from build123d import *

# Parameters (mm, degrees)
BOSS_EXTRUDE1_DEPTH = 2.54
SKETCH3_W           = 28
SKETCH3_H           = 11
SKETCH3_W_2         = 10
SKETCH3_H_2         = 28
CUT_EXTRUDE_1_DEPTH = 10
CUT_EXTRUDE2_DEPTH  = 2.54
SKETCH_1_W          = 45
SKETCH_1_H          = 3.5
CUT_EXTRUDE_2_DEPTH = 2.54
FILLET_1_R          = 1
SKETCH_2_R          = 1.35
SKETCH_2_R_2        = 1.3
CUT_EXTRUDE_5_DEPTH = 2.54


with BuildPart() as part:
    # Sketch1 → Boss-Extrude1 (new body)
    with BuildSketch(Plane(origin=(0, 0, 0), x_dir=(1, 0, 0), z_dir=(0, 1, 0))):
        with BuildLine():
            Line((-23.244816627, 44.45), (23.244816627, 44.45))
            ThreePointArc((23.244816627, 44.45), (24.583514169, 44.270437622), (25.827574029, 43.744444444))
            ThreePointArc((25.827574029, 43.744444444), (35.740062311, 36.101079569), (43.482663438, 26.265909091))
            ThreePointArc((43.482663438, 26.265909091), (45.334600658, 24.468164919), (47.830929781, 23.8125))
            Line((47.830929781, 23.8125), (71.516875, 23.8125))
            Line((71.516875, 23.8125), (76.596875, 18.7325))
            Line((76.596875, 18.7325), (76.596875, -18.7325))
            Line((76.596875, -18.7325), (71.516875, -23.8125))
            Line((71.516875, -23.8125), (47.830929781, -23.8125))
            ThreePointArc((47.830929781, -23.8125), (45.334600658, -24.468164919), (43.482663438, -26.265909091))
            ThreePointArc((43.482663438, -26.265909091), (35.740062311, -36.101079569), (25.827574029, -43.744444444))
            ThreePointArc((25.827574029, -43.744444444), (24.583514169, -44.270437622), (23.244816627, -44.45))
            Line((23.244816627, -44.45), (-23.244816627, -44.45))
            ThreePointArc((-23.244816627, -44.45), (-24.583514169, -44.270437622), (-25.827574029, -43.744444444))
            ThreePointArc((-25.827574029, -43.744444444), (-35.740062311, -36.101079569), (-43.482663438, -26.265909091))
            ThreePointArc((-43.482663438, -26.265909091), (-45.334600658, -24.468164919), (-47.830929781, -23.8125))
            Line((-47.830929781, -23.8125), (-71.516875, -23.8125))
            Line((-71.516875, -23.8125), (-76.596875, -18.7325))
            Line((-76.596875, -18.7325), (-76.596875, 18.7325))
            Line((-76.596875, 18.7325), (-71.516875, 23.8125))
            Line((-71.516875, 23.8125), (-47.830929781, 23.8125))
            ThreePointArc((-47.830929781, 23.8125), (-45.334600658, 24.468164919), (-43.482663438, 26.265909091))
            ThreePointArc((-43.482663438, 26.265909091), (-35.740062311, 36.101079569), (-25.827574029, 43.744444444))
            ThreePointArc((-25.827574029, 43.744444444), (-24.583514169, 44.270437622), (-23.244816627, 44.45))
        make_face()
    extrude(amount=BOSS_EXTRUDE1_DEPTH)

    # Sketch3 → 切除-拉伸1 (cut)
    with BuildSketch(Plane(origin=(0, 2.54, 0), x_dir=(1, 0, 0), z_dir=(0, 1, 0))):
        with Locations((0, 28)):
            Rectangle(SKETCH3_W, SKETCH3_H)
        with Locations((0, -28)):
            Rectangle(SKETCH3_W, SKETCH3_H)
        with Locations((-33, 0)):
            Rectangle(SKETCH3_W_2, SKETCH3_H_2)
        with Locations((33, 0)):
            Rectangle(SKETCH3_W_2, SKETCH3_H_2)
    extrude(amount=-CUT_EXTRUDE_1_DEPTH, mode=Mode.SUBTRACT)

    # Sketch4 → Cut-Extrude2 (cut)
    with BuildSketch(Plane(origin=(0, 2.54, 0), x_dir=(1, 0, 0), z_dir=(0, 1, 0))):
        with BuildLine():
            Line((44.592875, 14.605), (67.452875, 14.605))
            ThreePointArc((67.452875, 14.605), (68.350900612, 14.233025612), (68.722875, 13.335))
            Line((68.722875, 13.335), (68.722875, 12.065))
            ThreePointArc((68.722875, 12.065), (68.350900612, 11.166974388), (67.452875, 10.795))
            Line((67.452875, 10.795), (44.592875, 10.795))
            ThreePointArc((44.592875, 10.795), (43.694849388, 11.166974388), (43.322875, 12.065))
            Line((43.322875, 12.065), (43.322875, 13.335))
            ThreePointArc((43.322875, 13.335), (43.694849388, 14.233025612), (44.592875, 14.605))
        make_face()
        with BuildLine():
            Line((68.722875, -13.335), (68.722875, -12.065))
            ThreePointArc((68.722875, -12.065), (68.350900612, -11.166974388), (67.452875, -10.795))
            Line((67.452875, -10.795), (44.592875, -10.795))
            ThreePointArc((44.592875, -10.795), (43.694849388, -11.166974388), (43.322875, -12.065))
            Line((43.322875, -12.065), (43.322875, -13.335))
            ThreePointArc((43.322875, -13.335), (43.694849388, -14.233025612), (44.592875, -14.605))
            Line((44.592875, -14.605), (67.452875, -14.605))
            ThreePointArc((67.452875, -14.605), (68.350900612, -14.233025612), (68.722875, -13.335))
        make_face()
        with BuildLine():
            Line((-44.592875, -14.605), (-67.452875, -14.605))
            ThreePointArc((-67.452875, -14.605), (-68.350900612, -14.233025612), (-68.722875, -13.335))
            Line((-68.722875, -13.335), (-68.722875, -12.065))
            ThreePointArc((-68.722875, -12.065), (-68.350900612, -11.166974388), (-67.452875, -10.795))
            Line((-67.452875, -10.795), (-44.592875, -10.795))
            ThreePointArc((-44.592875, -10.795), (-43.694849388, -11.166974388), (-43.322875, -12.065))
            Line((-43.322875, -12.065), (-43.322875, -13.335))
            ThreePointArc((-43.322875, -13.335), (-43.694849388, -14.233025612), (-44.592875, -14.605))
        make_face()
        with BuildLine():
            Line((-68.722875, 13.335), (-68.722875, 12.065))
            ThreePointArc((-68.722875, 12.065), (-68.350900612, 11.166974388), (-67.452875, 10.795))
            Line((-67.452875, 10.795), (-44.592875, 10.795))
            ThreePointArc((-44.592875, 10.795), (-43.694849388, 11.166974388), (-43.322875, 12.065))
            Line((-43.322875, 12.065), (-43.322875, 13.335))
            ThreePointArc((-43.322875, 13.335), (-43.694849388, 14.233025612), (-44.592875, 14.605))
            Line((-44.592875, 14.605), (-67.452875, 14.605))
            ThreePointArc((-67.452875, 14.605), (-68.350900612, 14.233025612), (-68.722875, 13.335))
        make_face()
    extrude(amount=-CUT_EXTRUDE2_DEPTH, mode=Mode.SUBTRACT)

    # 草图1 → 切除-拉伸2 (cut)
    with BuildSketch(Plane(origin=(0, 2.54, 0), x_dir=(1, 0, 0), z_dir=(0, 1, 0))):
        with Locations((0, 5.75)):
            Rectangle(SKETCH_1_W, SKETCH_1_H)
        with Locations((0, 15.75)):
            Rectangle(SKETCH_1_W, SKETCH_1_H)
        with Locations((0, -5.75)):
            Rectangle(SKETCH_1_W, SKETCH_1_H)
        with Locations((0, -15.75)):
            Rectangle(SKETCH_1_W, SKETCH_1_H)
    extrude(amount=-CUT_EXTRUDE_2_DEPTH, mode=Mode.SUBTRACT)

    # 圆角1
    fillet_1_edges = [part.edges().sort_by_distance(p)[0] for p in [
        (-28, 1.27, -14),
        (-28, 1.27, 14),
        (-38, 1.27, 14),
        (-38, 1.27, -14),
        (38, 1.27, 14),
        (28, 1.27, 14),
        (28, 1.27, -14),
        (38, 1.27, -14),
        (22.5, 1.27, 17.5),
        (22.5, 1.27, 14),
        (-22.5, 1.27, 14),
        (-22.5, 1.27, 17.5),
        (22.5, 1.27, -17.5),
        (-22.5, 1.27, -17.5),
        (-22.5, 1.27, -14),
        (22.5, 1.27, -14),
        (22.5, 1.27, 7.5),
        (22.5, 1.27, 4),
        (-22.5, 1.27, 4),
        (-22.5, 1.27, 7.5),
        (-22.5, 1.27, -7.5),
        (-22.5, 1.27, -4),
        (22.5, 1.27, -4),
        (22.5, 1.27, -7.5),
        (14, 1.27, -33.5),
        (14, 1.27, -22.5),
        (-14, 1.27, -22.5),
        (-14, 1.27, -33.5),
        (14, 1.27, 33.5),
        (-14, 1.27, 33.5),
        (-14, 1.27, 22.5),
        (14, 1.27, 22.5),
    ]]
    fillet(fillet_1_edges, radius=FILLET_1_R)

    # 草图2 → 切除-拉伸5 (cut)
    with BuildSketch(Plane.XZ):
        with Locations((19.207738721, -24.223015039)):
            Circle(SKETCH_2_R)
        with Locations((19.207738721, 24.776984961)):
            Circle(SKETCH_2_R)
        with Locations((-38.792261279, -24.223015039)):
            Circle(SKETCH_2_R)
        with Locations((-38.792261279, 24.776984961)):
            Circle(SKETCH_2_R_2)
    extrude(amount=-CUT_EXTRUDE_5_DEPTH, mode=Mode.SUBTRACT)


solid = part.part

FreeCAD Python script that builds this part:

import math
import FreeCAD as App
import Part
import Sketcher


def edges_at(feature, points):
    """Names of the edges that pass closest to the given points."""
    edges = feature.Shape.Edges
    near = lambda p: min(range(len(edges)), key=lambda i: edges[i].distToShape(Part.Vertex(*p))[0])
    return sorted({f"Edge{near(p) + 1}" for p in points})

doc = App.newDocument("Part")
body = doc.addObject("PartDesign::Body", "Body")

# Sketch on XZ plane
sketch1 = body.newObject("Sketcher::SketchObject", "Sketch")
sketch1.AttachmentSupport = (doc.getObject("XZ_Plane"), [""])
sketch1.MapMode = "FlatFace"
sketch1.addGeometry(Part.LineSegment(App.Vector(23.2, -44.5, 0), App.Vector(-23.2, -44.5, 0)), False)
sketch1.addGeometry(Part.ArcOfCircle(Part.Circle(App.Vector(-23.2, -39.4, 0), App.Vector(0, 0, 1), 5.1), math.radians(-121), math.radians(-90)), False)
sketch1.addGeometry(Part.ArcOfCircle(Part.Circle(App.Vector(0, 0, 0), App.Vector(0, 0, 1), 50.8), math.radians(-149), math.radians(-121)), False)
sketch1.addGeometry(Part.ArcOfCircle(Part.Circle(App.Vector(-47.8, -28.9, 0), App.Vector(0, 0, 1), 5.1), math.radians(31), math.radians(90)), False)
sketch1.addGeometry(Part.LineSegment(App.Vector(-47.8, -23.8, 0), App.Vector(-71.5, -23.8, 0)), False)
sketch1.addGeometry(Part.LineSegment(App.Vector(-71.5, -23.8, 0), App.Vector(-76.6, -18.7, 0)), False)
sketch1.addGeometry(Part.LineSegment(App.Vector(-76.6, -18.7, 0), App.Vector(-76.6, 18.7, 0)), False)
sketch1.addGeometry(Part.LineSegment(App.Vector(-76.6, 18.7, 0), App.Vector(-71.5, 23.8, 0)), False)
sketch1.addGeometry(Part.LineSegment(App.Vector(-71.5, 23.8, 0), App.Vector(-47.8, 23.8, 0)), False)
sketch1.addGeometry(Part.ArcOfCircle(Part.Circle(App.Vector(-47.8, 28.9, 0), App.Vector(0, 0, 1), 5.1), math.radians(-90), math.radians(-31)), False)
sketch1.addGeometry(Part.ArcOfCircle(Part.Circle(App.Vector(0, 0, 0), App.Vector(0, 0, 1), 50.8), math.radians(121), math.radians(149)), False)
sketch1.addGeometry(Part.ArcOfCircle(Part.Circle(App.Vector(-23.2, 39.4, 0), App.Vector(0, 0, 1), 5.1), math.radians(90), math.radians(121)), False)
sketch1.addGeometry(Part.LineSegment(App.Vector(-23.2, 44.5, 0), App.Vector(23.2, 44.5, 0)), False)
sketch1.addGeometry(Part.ArcOfCircle(Part.Circle(App.Vector(23.2, 39.4, 0), App.Vector(0, 0, 1), 5.1), math.radians(59), math.radians(90)), False)
sketch1.addGeometry(Part.ArcOfCircle(Part.Circle(App.Vector(0, 0, 0), App.Vector(0, 0, 1), 50.8), math.radians(31), math.radians(59)), False)
sketch1.addGeometry(Part.ArcOfCircle(Part.Circle(App.Vector(47.8, 28.9, 0), App.Vector(0, 0, 1), 5.1), math.radians(-149), math.radians(-90)), False)
sketch1.addGeometry(Part.LineSegment(App.Vector(47.8, 23.8, 0), App.Vector(71.5, 23.8, 0)), False)
sketch1.addGeometry(Part.LineSegment(App.Vector(71.5, 23.8, 0), App.Vector(76.6, 18.7, 0)), False)
sketch1.addGeometry(Part.LineSegment(App.Vector(76.6, 18.7, 0), App.Vector(76.6, -18.7, 0)), False)
sketch1.addGeometry(Part.LineSegment(App.Vector(76.6, -18.7, 0), App.Vector(71.5, -23.8, 0)), False)
sketch1.addGeometry(Part.LineSegment(App.Vector(71.5, -23.8, 0), App.Vector(47.8, -23.8, 0)), False)
sketch1.addGeometry(Part.ArcOfCircle(Part.Circle(App.Vector(47.8, -28.9, 0), App.Vector(0, 0, 1), 5.1), math.radians(90), math.radians(149)), False)
sketch1.addGeometry(Part.ArcOfCircle(Part.Circle(App.Vector(0, 0, 0), App.Vector(0, 0, 1), 50.8), math.radians(-59), math.radians(-31)), False)
sketch1.addGeometry(Part.ArcOfCircle(Part.Circle(App.Vector(23.2, -39.4, 0), App.Vector(0, 0, 1), 5.1), math.radians(-90), math.radians(-59)), False)
sketch1.addConstraint(Sketcher.Constraint("Tangent", 0, 2, 1, 2))
sketch1.addConstraint(Sketcher.Constraint("Tangent", 1, 1, 2, 2))
sketch1.addConstraint(Sketcher.Constraint("Tangent", 2, 1, 3, 1))
sketch1.addConstraint(Sketcher.Constraint("Tangent", 3, 2, 4, 1))
sketch1.addConstraint(Sketcher.Constraint("Coincident", 4, 2, 5, 1))
sketch1.addConstraint(Sketcher.Constraint("Coincident", 5, 2, 6, 1))
sketch1.addConstraint(Sketcher.Constraint("Coincident", 6, 2, 7, 1))
sketch1.addConstraint(Sketcher.Constraint("Coincident", 7, 2, 8, 1))
sketch1.addConstraint(Sketcher.Constraint("Tangent", 8, 2, 9, 1))
sketch1.addConstraint(Sketcher.Constraint("Tangent", 9, 2, 10, 2))
sketch1.addConstraint(Sketcher.Constraint("Tangent", 10, 1, 11, 2))
sketch1.addConstraint(Sketcher.Constraint("Tangent", 11, 1, 12, 1))
sketch1.addConstraint(Sketcher.Constraint("Tangent", 12, 2, 13, 2))
sketch1.addConstraint(Sketcher.Constraint("Tangent", 13, 1, 14, 2))
sketch1.addConstraint(Sketcher.Constraint("Tangent", 14, 1, 15, 1))
sketch1.addConstraint(Sketcher.Constraint("Tangent", 15, 2, 16, 1))
sketch1.addConstraint(Sketcher.Constraint("Coincident", 16, 2, 17, 1))
sketch1.addConstraint(Sketcher.Constraint("Coincident", 17, 2, 18, 1))
sketch1.addConstraint(Sketcher.Constraint("Coincident", 18, 2, 19, 1))
sketch1.addConstraint(Sketcher.Constraint("Coincident", 19, 2, 20, 1))
sketch1.addConstraint(Sketcher.Constraint("Tangent", 20, 2, 21, 1))
sketch1.addConstraint(Sketcher.Constraint("Tangent", 21, 2, 22, 2))
sketch1.addConstraint(Sketcher.Constraint("Tangent", 22, 1, 23, 2))
sketch1.addConstraint(Sketcher.Constraint("Tangent", 23, 1, 0, 1))
sketch1.addConstraint(Sketcher.Constraint("Horizontal", 0))
sketch1.addConstraint(Sketcher.Constraint("Horizontal", 4))
sketch1.addConstraint(Sketcher.Constraint("Vertical", 6))
sketch1.addConstraint(Sketcher.Constraint("Horizontal", 8))
sketch1.addConstraint(Sketcher.Constraint("Horizontal", 12))
sketch1.addConstraint(Sketcher.Constraint("Horizontal", 16))
sketch1.addConstraint(Sketcher.Constraint("Vertical", 18))
sketch1.addConstraint(Sketcher.Constraint("Horizontal", 20))
sketch1.addConstraint(Sketcher.Constraint("Coincident", 2, 3, -1, 1))
sketch1.addConstraint(Sketcher.Constraint("Coincident", 10, 3, -1, 1))
sketch1.addConstraint(Sketcher.Constraint("Coincident", 14, 3, -1, 1))
sketch1.addConstraint(Sketcher.Constraint("Coincident", 22, 3, -1, 1))
sketch1.addConstraint(Sketcher.Constraint("Equal", 1, 3))
sketch1.addConstraint(Sketcher.Constraint("Equal", 3, 9))
sketch1.addConstraint(Sketcher.Constraint("Equal", 2, 10))
sketch1.addConstraint(Sketcher.Constraint("Equal", 9, 11))
sketch1.addConstraint(Sketcher.Constraint("Equal", 11, 13))
sketch1.addConstraint(Sketcher.Constraint("Equal", 10, 14))
sketch1.addConstraint(Sketcher.Constraint("Equal", 13, 15))
sketch1.addConstraint(Sketcher.Constraint("Equal", 15, 21))
sketch1.addConstraint(Sketcher.Constraint("Equal", 14, 22))
sketch1.addConstraint(Sketcher.Constraint("Equal", 21, 23))
sketch1.addConstraint(Sketcher.Constraint("Symmetric", 4, 2, 16, 2, -1, 1))
sketch1.addConstraint(Sketcher.Constraint("Symmetric", 5, 2, 17, 2, -1, 1))
sketch1.addConstraint(Sketcher.Constraint("Symmetric", 7, 2, 19, 2, -1, 1))
sketch1.addConstraint(Sketcher.Constraint("Symmetric", 7, 2, 16, 2, -2))
sketch1.addConstraint(Sketcher.Constraint("Perpendicular", 5, 7))
sketch1.addConstraint(Sketcher.Constraint("Perpendicular", 17, 19))
sketch1.addConstraint(Sketcher.Constraint("Horizontal", 6, 2, 17, 2))
sketch1.addConstraint(Sketcher.Constraint("Vertical", 1, 3, 11, 3))
sketch1.addConstraint(Sketcher.Constraint("Radius", 2, 50.8))
sketch1.addConstraint(Sketcher.Constraint("Radius", 1, 5.08))
sketch1.addConstraint(Sketcher.Constraint("DistanceY", 6, 1, 6, 2, 37.465))
sketch1.addConstraint(Sketcher.Constraint("DistanceY", 1, 3, -1, 1, 39.37))
sketch1.addConstraint(Sketcher.Constraint("DistanceX", 5, 2, 4, 2, 5.08))
sketch1.addConstraint(Sketcher.Constraint("DistanceX", 4, 2, 1, 1, 45.689301))
pad1 = body.newObject("PartDesign::Pad", "Pad")
pad1.Profile = sketch1
pad1.Length = 2.54
pad1.Reversed = True

# Sketch on XZ plane
sketch2 = body.newObject("Sketcher::SketchObject", "Sketch001")
sketch2.AttachmentSupport = (doc.getObject("XZ_Plane"), [""])
sketch2.MapMode = "FlatFace"
sketch2.AttachmentOffset = App.Placement(App.Vector(0, 0, -2.54), App.Rotation())
sketch2.addGeometry(Part.LineSegment(App.Vector(-14, -34, 0), App.Vector(-14, -22, 0)), False)
sketch2.addGeometry(Part.LineSegment(App.Vector(-14, -22, 0), App.Vector(14, -22, 0)), False)
sketch2.addGeometry(Part.LineSegment(App.Vector(14, -22, 0), App.Vector(14, -34, 0)), False)
sketch2.addGeometry(Part.LineSegment(App.Vector(14, -34, 0), App.Vector(-14, -34, 0)), False)
sketch2.addGeometry(Part.LineSegment(App.Vector(-14, 22, 0), App.Vector(-14, 34, 0)), False)
sketch2.addGeometry(Part.LineSegment(App.Vector(-14, 34, 0), App.Vector(14, 34, 0)), False)
sketch2.addGeometry(Part.LineSegment(App.Vector(14, 34, 0), App.Vector(14, 22, 0)), False)
sketch2.addGeometry(Part.LineSegment(App.Vector(14, 22, 0), App.Vector(-14, 22, 0)), False)
sketch2.addGeometry(Part.LineSegment(App.Vector(-38, -14, 0), App.Vector(-38, 14, 0)), False)
sketch2.addGeometry(Part.LineSegment(App.Vector(-38, 14, 0), App.Vector(-28, 14, 0)), False)
sketch2.addGeometry(Part.LineSegment(App.Vector(-28, 14, 0), App.Vector(-28, -14, 0)), False)
sketch2.addGeometry(Part.LineSegment(App.Vector(-28, -14, 0), App.Vector(-38, -14, 0)), False)
sketch2.addGeometry(Part.LineSegment(App.Vector(28, -14, 0), App.Vector(28, 14, 0)), False)
sketch2.addGeometry(Part.LineSegment(App.Vector(28, 14, 0), App.Vector(38, 14, 0)), False)
sketch2.addGeometry(Part.LineSegment(App.Vector(38, 14, 0), App.Vector(38, -14, 0)), False)
sketch2.addGeometry(Part.LineSegment(App.Vector(38, -14, 0), App.Vector(28, -14, 0)), False)
sketch2.addConstraint(Sketcher.Constraint("Coincident", 0, 2, 1, 1))
sketch2.addConstraint(Sketcher.Constraint("Coincident", 1, 2, 2, 1))
sketch2.addConstraint(Sketcher.Constraint("Coincident", 2, 2, 3, 1))
sketch2.addConstraint(Sketcher.Constraint("Coincident", 3, 2, 0, 1))
sketch2.addConstraint(Sketcher.Constraint("Coincident", 4, 2, 5, 1))
sketch2.addConstraint(Sketcher.Constraint("Coincident", 5, 2, 6, 1))
sketch2.addConstraint(Sketcher.Constraint("Coincident", 6, 2, 7, 1))
sketch2.addConstraint(Sketcher.Constraint("Coincident", 7, 2, 4, 1))
sketch2.addConstraint(Sketcher.Constraint("Coincident", 8, 2, 9, 1))
sketch2.addConstraint(Sketcher.Constraint("Coincident", 9, 2, 10, 1))
sketch2.addConstraint(Sketcher.Constraint("Coincident", 10, 2, 11, 1))
sketch2.addConstraint(Sketcher.Constraint("Coincident", 11, 2, 8, 1))
sketch2.addConstraint(Sketcher.Constraint("Coincident", 12, 2, 13, 1))
sketch2.addConstraint(Sketcher.Constraint("Coincident", 13, 2, 14, 1))
sketch2.addConstraint(Sketcher.Constraint("Coincident", 14, 2, 15, 1))
sketch2.addConstraint(Sketcher.Constraint("Coincident", 15, 2, 12, 1))
sketch2.addConstraint(Sketcher.Constraint("Vertical", 0))
sketch2.addConstraint(Sketcher.Constraint("Horizontal", 1))
sketch2.addConstraint(Sketcher.Constraint("Vertical", 2))
sketch2.addConstraint(Sketcher.Constraint("Horizontal", 3))
sketch2.addConstraint(Sketcher.Constraint("Vertical", 4))
sketch2.addConstraint(Sketcher.Constraint("Horizontal", 5))
sketch2.addConstraint(Sketcher.Constraint("Vertical", 6))
sketch2.addConstraint(Sketcher.Constraint("Horizontal", 7))
sketch2.addConstraint(Sketcher.Constraint("Vertical", 8))
sketch2.addConstraint(Sketcher.Constraint("Horizontal", 9))
sketch2.addConstraint(Sketcher.Constraint("Vertical", 10))
sketch2.addConstraint(Sketcher.Constraint("Horizontal", 11))
sketch2.addConstraint(Sketcher.Constraint("Vertical", 12))
sketch2.addConstraint(Sketcher.Constraint("Horizontal", 13))
sketch2.addConstraint(Sketcher.Constraint("Vertical", 14))
sketch2.addConstraint(Sketcher.Constraint("Horizontal", 15))
sketch2.addConstraint(Sketcher.Constraint("Symmetric", 2, 2, 4, 2, -1, 1))
sketch2.addConstraint(Sketcher.Constraint("Symmetric", 0, 2, 6, 2, -1, 1))
sketch2.addConstraint(Sketcher.Constraint("Symmetric", 10, 2, 12, 2, -1, 1))
sketch2.addConstraint(Sketcher.Constraint("Symmetric", 8, 2, 14, 2, -1, 1))
sketch2.addConstraint(Sketcher.Constraint("Horizontal", 9, 2, 12, 2))
sketch2.addConstraint(Sketcher.Constraint("Vertical", 3, 2, 4, 2))
sketch2.addConstraint(Sketcher.Constraint("Equal", 7, 8))
sketch2.addConstraint(Sketcher.Constraint("DistanceX", 1, 1, 1, 2, 28.0))
sketch2.addConstraint(Sketcher.Constraint("DistanceX", 9, 1, 9, 2, 10.0))
sketch2.addConstraint(Sketcher.Constraint("DistanceY", 0, 1, 0, 2, 11.0))
sketch2.addConstraint(Sketcher.Constraint("DistanceX", 8, 2, -1, 1, 38.0))
sketch2.addConstraint(Sketcher.Constraint("DistanceY", 0, 2, 4, 2, 56.0))
pocket1 = body.newObject("PartDesign::Pocket", "Pocket")
pocket1.Profile = sketch2
pocket1.Length = 10
pocket1.Reversed = True

# Sketch on XZ plane
sketch3 = body.newObject("Sketcher::SketchObject", "Sketch002")
sketch3.AttachmentSupport = (doc.getObject("XZ_Plane"), [""])
sketch3.MapMode = "FlatFace"
sketch3.AttachmentOffset = App.Placement(App.Vector(0, 0, -2.54), App.Rotation())
sketch3.addGeometry(Part.LineSegment(App.Vector(67.5, -14.6, 0), App.Vector(44.6, -14.6, 0)), False)
sketch3.addGeometry(Part.ArcOfCircle(Part.Circle(App.Vector(44.6, -13.3, 0), App.Vector(0, 0, 1), 1.3), math.radians(180), math.radians(270)), False)
sketch3.addGeometry(Part.LineSegment(App.Vector(43.3, -13.3, 0), App.Vector(43.3, -12.1, 0)), False)
sketch3.addGeometry(Part.ArcOfCircle(Part.Circle(App.Vector(44.6, -12.1, 0), App.Vector(0, 0, 1), 1.3), math.radians(90), math.radians(180)), False)
sketch3.addGeometry(Part.LineSegment(App.Vector(44.6, -10.8, 0), App.Vector(67.5, -10.8, 0)), False)
sketch3.addGeometry(Part.ArcOfCircle(Part.Circle(App.Vector(67.5, -12.1, 0), App.Vector(0, 0, 1), 1.3), math.radians(0), math.radians(90)), False)
sketch3.addGeometry(Part.LineSegment(App.Vector(68.7, -12.1, 0), App.Vector(68.7, -13.3, 0)), False)
sketch3.addGeometry(Part.ArcOfCircle(Part.Circle(App.Vector(67.5, -13.3, 0), App.Vector(0, 0, 1), 1.3), math.radians(-90), math.radians(0)), False)
sketch3.addGeometry(Part.LineSegment(App.Vector(68.7, 13.3, 0), App.Vector(68.7, 12.1, 0)), False)
sketch3.addGeometry(Part.ArcOfCircle(Part.Circle(App.Vector(67.5, 12.1, 0), App.Vector(0, 0, 1), 1.3), math.radians(-90), math.radians(0)), False)
sketch3.addGeometry(Part.LineSegment(App.Vector(67.5, 10.8, 0), App.Vector(44.6, 10.8, 0)), False)
sketch3.addGeometry(Part.ArcOfCircle(Part.Circle(App.Vector(44.6, 12.1, 0), App.Vector(0, 0, 1), 1.3), math.radians(180), math.radians(270)), False)
sketch3.addGeometry(Part.LineSegment(App.Vector(43.3, 12.1, 0), App.Vector(43.3, 13.3, 0)), False)
sketch3.addGeometry(Part.ArcOfCircle(Part.Circle(App.Vector(44.6, 13.3, 0), App.Vector(0, 0, 1), 1.3), math.radians(90), math.radians(180)), False)
sketch3.addGeometry(Part.LineSegment(App.Vector(44.6, 14.6, 0), App.Vector(67.5, 14.6, 0)), False)
sketch3.addGeometry(Part.ArcOfCircle(Part.Circle(App.Vector(67.5, 13.3, 0), App.Vector(0, 0, 1), 1.3), math.radians(0), math.radians(90)), False)
sketch3.addGeometry(Part.LineSegment(App.Vector(-67.5, 14.6, 0), App.Vector(-44.6, 14.6, 0)), False)
sketch3.addGeometry(Part.ArcOfCircle(Part.Circle(App.Vector(-44.6, 13.3, 0), App.Vector(0, 0, 1), 1.3), math.radians(0), math.radians(90)), False)
sketch3.addGeometry(Part.LineSegment(App.Vector(-43.3, 13.3, 0), App.Vector(-43.3, 12.1, 0)), False)
sketch3.addGeometry(Part.ArcOfCircle(Part.Circle(App.Vector(-44.6, 12.1, 0), App.Vector(0, 0, 1), 1.3), math.radians(-90), math.radians(0)), False)
sketch3.addGeometry(Part.LineSegment(App.Vector(-44.6, 10.8, 0), App.Vector(-67.5, 10.8, 0)), False)
sketch3.addGeometry(Part.ArcOfCircle(Part.Circle(App.Vector(-67.5, 12.1, 0), App.Vector(0, 0, 1), 1.3), math.radians(180), math.radians(270)), False)
sketch3.addGeometry(Part.LineSegment(App.Vector(-68.7, 12.1, 0), App.Vector(-68.7, 13.3, 0)), False)
sketch3.addGeometry(Part.ArcOfCircle(Part.Circle(App.Vector(-67.5, 13.3, 0), App.Vector(0, 0, 1), 1.3), math.radians(90), math.radians(180)), False)
sketch3.addGeometry(Part.LineSegment(App.Vector(-68.7, -13.3, 0), App.Vector(-68.7, -12.1, 0)), False)
sketch3.addGeometry(Part.ArcOfCircle(Part.Circle(App.Vector(-67.5, -12.1, 0), App.Vector(0, 0, 1), 1.3), math.radians(90), math.radians(180)), False)
sketch3.addGeometry(Part.LineSegment(App.Vector(-67.5, -10.8, 0), App.Vector(-44.6, -10.8, 0)), False)
sketch3.addGeometry(Part.ArcOfCircle(Part.Circle(App.Vector(-44.6, -12.1, 0), App.Vector(0, 0, 1), 1.3), math.radians(0), math.radians(90)), False)
sketch3.addGeometry(Part.LineSegment(App.Vector(-43.3, -12.1, 0), App.Vector(-43.3, -13.3, 0)), False)
sketch3.addGeometry(Part.ArcOfCircle(Part.Circle(App.Vector(-44.6, -13.3, 0), App.Vector(0, 0, 1), 1.3), math.radians(-90), math.radians(0)), False)
sketch3.addGeometry(Part.LineSegment(App.Vector(-44.6, -14.6, 0), App.Vector(-67.5, -14.6, 0)), False)
sketch3.addGeometry(Part.ArcOfCircle(Part.Circle(App.Vector(-67.5, -13.3, 0), App.Vector(0, 0, 1), 1.3), math.radians(180), math.radians(270)), False)
sketch3.addConstraint(Sketcher.Constraint("Tangent", 0, 2, 1, 2))
sketch3.addConstraint(Sketcher.Constraint("Tangent", 1, 1, 2, 1))
sketch3.addConstraint(Sketcher.Constraint("Tangent", 2, 2, 3, 2))
sketch3.addConstraint(Sketcher.Constraint("Tangent", 3, 1, 4, 1))
sketch3.addConstraint(Sketcher.Constraint("Tangent", 4, 2, 5, 2))
sketch3.addConstraint(Sketcher.Constraint("Tangent", 5, 1, 6, 1))
sketch3.addConstraint(Sketcher.Constraint("Tangent", 6, 2, 7, 2))
sketch3.addConstraint(Sketcher.Constraint("Tangent", 7, 1, 0, 1))
sketch3.addConstraint(Sketcher.Constraint("Tangent", 8, 2, 9, 2))
sketch3.addConstraint(Sketcher.Constraint("Tangent", 9, 1, 10, 1))
sketch3.addConstraint(Sketcher.Constraint("Tangent", 10, 2, 11, 2))
sketch3.addConstraint(Sketcher.Constraint("Tangent", 11, 1, 12, 1))
sketch3.addConstraint(Sketcher.Constraint("Tangent", 12, 2, 13, 2))
sketch3.addConstraint(Sketcher.Constraint("Tangent", 13, 1, 14, 1))
sketch3.addConstraint(Sketcher.Constraint("Tangent", 14, 2, 15, 2))
sketch3.addConstraint(Sketcher.Constraint("Tangent", 15, 1, 8, 1))
sketch3.addConstraint(Sketcher.Constraint("Tangent", 16, 2, 17, 2))
sketch3.addConstraint(Sketcher.Constraint("Tangent", 17, 1, 18, 1))
sketch3.addConstraint(Sketcher.Constraint("Tangent", 18, 2, 19, 2))
sketch3.addConstraint(Sketcher.Constraint("Tangent", 19, 1, 20, 1))
sketch3.addConstraint(Sketcher.Constraint("Tangent", 20, 2, 21, 2))
sketch3.addConstraint(Sketcher.Constraint("Tangent", 21, 1, 22, 1))
sketch3.addConstraint(Sketcher.Constraint("Tangent", 22, 2, 23, 2))
sketch3.addConstraint(Sketcher.Constraint("Tangent", 23, 1, 16, 1))
sketch3.addConstraint(Sketcher.Constraint("Tangent", 24, 2, 25, 2))
sketch3.addConstraint(Sketcher.Constraint("Tangent", 25, 1, 26, 1))
sketch3.addConstraint(Sketcher.Constraint("Tangent", 26, 2, 27, 2))
sketch3.addConstraint(Sketcher.Constraint("Tangent", 27, 1, 28, 1))
sketch3.addConstraint(Sketcher.Constraint("Tangent", 28, 2, 29, 2))
sketch3.addConstraint(Sketcher.Constraint("Tangent", 29, 1, 30, 1))
sketch3.addConstraint(Sketcher.Constraint("Tangent", 30, 2, 31, 2))
sketch3.addConstraint(Sketcher.Constraint("Tangent", 31, 1, 24, 1))
sketch3.addConstraint(Sketcher.Constraint("Horizontal", 0))
sketch3.addConstraint(Sketcher.Constraint("Vertical", 2))
sketch3.addConstraint(Sketcher.Constraint("Horizontal", 4))
sketch3.addConstraint(Sketcher.Constraint("Vertical", 6))
sketch3.addConstraint(Sketcher.Constraint("Vertical", 8))
sketch3.addConstraint(Sketcher.Constraint("Horizontal", 10))
sketch3.addConstraint(Sketcher.Constraint("Vertical", 12))
sketch3.addConstraint(Sketcher.Constraint("Horizontal", 14))
sketch3.addConstraint(Sketcher.Constraint("Horizontal", 16))
sketch3.addConstraint(Sketcher.Constraint("Vertical", 18))
sketch3.addConstraint(Sketcher.Constraint("Horizontal", 20))
sketch3.addConstraint(Sketcher.Constraint("Vertical", 22))
sketch3.addConstraint(Sketcher.Constraint("Vertical", 24))
sketch3.addConstraint(Sketcher.Constraint("Horizontal", 26))
sketch3.addConstraint(Sketcher.Constraint("Vertical", 28))
sketch3.addConstraint(Sketcher.Constraint("Horizontal", 30))
sketch3.addConstraint(Sketcher.Constraint("Equal", 1, 3))
sketch3.addConstraint(Sketcher.Constraint("Equal", 3, 5))
sketch3.addConstraint(Sketcher.Constraint("Equal", 5, 7))
sketch3.addConstraint(Sketcher.Constraint("Equal", 7, 9))
sketch3.addConstraint(Sketcher.Constraint("Equal", 9, 11))
sketch3.addConstraint(Sketcher.Constraint("Equal", 11, 13))
sketch3.addConstraint(Sketcher.Constraint("Equal", 13, 15))
sketch3.addConstraint(Sketcher.Constraint("Equal", 15, 17))
sketch3.addConstraint(Sketcher.Constraint("Equal", 17, 19))
sketch3.addConstraint(Sketcher.Constraint("Equal", 19, 21))
sketch3.addConstraint(Sketcher.Constraint("Equal", 21, 23))
sketch3.addConstraint(Sketcher.Constraint("Equal", 23, 25))
sketch3.addConstraint(Sketcher.Constraint("Equal", 25, 27))
sketch3.addConstraint(Sketcher.Constraint("Equal", 27, 29))
sketch3.addConstraint(Sketcher.Constraint("Equal", 29, 31))
sketch3.addConstraint(Sketcher.Constraint("Symmetric", 1, 3, 17, 3, -1, 1))
sketch3.addConstraint(Sketcher.Constraint("Symmetric", 5, 3, 21, 3, -1, 1))
sketch3.addConstraint(Sketcher.Constraint("Symmetric", 9, 3, 25, 3, -1, 1))
sketch3.addConstraint(Sketcher.Constraint("Symmetric", 13, 3, 29, 3, -1, 1))
sketch3.addConstraint(Sketcher.Constraint("Symmetric", 13, 3, 17, 3, -2))
sketch3.addConstraint(Sketcher.Constraint("Symmetric", 9, 3, 21, 3, -2))
sketch3.addConstraint(Sketcher.Constraint("Radius", 1, 1.27))
sketch3.addConstraint(Sketcher.Constraint("DistanceX", 0, 2, 0, 1, 22.86))
sketch3.addConstraint(Sketcher.Constraint("DistanceY", 2, 1, 2, 2, 1.27))
sketch3.addConstraint(Sketcher.Constraint("DistanceY", 7, 3, 9, 3, 25.4))
sketch3.addConstraint(Sketcher.Constraint("DistanceX", 17, 3, 13, 3, 89.18575))
pocket2 = body.newObject("PartDesign::Pocket", "Pocket001")
pocket2.Profile = sketch3
pocket2.Length = 2.54
pocket2.Reversed = True

# Sketch on XZ plane
sketch4 = body.newObject("Sketcher::SketchObject", "Sketch003")
sketch4.AttachmentSupport = (doc.getObject("XZ_Plane"), [""])
sketch4.MapMode = "FlatFace"
sketch4.AttachmentOffset = App.Placement(App.Vector(0, 0, -2.54), App.Rotation())
sketch4.addGeometry(Part.LineSegment(App.Vector(-22.5, -7.5, 0), App.Vector(-22.5, -4, 0)), False)
sketch4.addGeometry(Part.LineSegment(App.Vector(-22.5, -4, 0), App.Vector(22.5, -4, 0)), False)
sketch4.addGeometry(Part.LineSegment(App.Vector(22.5, -4, 0), App.Vector(22.5, -7.5, 0)), False)
sketch4.addGeometry(Part.LineSegment(App.Vector(22.5, -7.5, 0), App.Vector(-22.5, -7.5, 0)), False)
sketch4.addGeometry(Part.LineSegment(App.Vector(-22.5, -17.5, 0), App.Vector(-22.5, -14, 0)), False)
sketch4.addGeometry(Part.LineSegment(App.Vector(-22.5, -14, 0), App.Vector(22.5, -14, 0)), False)
sketch4.addGeometry(Part.LineSegment(App.Vector(22.5, -14, 0), App.Vector(22.5, -17.5, 0)), False)
sketch4.addGeometry(Part.LineSegment(App.Vector(22.5, -17.5, 0), App.Vector(-22.5, -17.5, 0)), False)
sketch4.addGeometry(Part.LineSegment(App.Vector(-22.5, 4, 0), App.Vector(-22.5, 7.5, 0)), False)
sketch4.addGeometry(Part.LineSegment(App.Vector(-22.5, 7.5, 0), App.Vector(22.5, 7.5, 0)), False)
sketch4.addGeometry(Part.LineSegment(App.Vector(22.5, 7.5, 0), App.Vector(22.5, 4, 0)), False)
sketch4.addGeometry(Part.LineSegment(App.Vector(22.5, 4, 0), App.Vector(-22.5, 4, 0)), False)
sketch4.addGeometry(Part.LineSegment(App.Vector(-22.5, 14, 0), App.Vector(-22.5, 17.5, 0)), False)
sketch4.addGeometry(Part.LineSegment(App.Vector(-22.5, 17.5, 0), App.Vector(22.5, 17.5, 0)), False)
sketch4.addGeometry(Part.LineSegment(App.Vector(22.5, 17.5, 0), App.Vector(22.5, 14, 0)), False)
sketch4.addGeometry(Part.LineSegment(App.Vector(22.5, 14, 0), App.Vector(-22.5, 14, 0)), False)
sketch4.addConstraint(Sketcher.Constraint("Coincident", 0, 2, 1, 1))
sketch4.addConstraint(Sketcher.Constraint("Coincident", 1, 2, 2, 1))
sketch4.addConstraint(Sketcher.Constraint("Coincident", 2, 2, 3, 1))
sketch4.addConstraint(Sketcher.Constraint("Coincident", 3, 2, 0, 1))
sketch4.addConstraint(Sketcher.Constraint("Coincident", 4, 2, 5, 1))
sketch4.addConstraint(Sketcher.Constraint("Coincident", 5, 2, 6, 1))
sketch4.addConstraint(Sketcher.Constraint("Coincident", 6, 2, 7, 1))
sketch4.addConstraint(Sketcher.Constraint("Coincident", 7, 2, 4, 1))
sketch4.addConstraint(Sketcher.Constraint("Coincident", 8, 2, 9, 1))
sketch4.addConstraint(Sketcher.Constraint("Coincident", 9, 2, 10, 1))
sketch4.addConstraint(Sketcher.Constraint("Coincident", 10, 2, 11, 1))
sketch4.addConstraint(Sketcher.Constraint("Coincident", 11, 2, 8, 1))
sketch4.addConstraint(Sketcher.Constraint("Coincident", 12, 2, 13, 1))
sketch4.addConstraint(Sketcher.Constraint("Coincident", 13, 2, 14, 1))
sketch4.addConstraint(Sketcher.Constraint("Coincident", 14, 2, 15, 1))
sketch4.addConstraint(Sketcher.Constraint("Coincident", 15, 2, 12, 1))
sketch4.addConstraint(Sketcher.Constraint("Vertical", 0))
sketch4.addConstraint(Sketcher.Constraint("Horizontal", 1))
sketch4.addConstraint(Sketcher.Constraint("Vertical", 2))
sketch4.addConstraint(Sketcher.Constraint("Horizontal", 3))
sketch4.addConstraint(Sketcher.Constraint("Vertical", 4))
sketch4.addConstraint(Sketcher.Constraint("Horizontal", 5))
sketch4.addConstraint(Sketcher.Constraint("Vertical", 6))
sketch4.addConstraint(Sketcher.Constraint("Horizontal", 7))
sketch4.addConstraint(Sketcher.Constraint("Vertical", 8))
sketch4.addConstraint(Sketcher.Constraint("Horizontal", 9))
sketch4.addConstraint(Sketcher.Constraint("Vertical", 10))
sketch4.addConstraint(Sketcher.Constraint("Horizontal", 11))
sketch4.addConstraint(Sketcher.Constraint("Vertical", 12))
sketch4.addConstraint(Sketcher.Constraint("Horizontal", 13))
sketch4.addConstraint(Sketcher.Constraint("Vertical", 14))
sketch4.addConstraint(Sketcher.Constraint("Horizontal", 15))
sketch4.addConstraint(Sketcher.Constraint("Symmetric", 2, 2, 8, 2, -1, 1))
sketch4.addConstraint(Sketcher.Constraint("Symmetric", 0, 2, 10, 2, -1, 1))
sketch4.addConstraint(Sketcher.Constraint("Symmetric", 6, 2, 12, 2, -1, 1))
sketch4.addConstraint(Sketcher.Constraint("Symmetric", 4, 2, 14, 2, -1, 1))
sketch4.addConstraint(Sketcher.Constraint("Vertical", 3, 2, 4, 2))
sketch4.addConstraint(Sketcher.Constraint("Vertical", 2, 2, 5, 2))
sketch4.addConstraint(Sketcher.Constraint("Vertical", 7, 2, 8, 2))
sketch4.addConstraint(Sketcher.Constraint("Equal", 2, 4))
sketch4.addConstraint(Sketcher.Constraint("DistanceX", 1, 1, 1, 2, 45.0))
sketch4.addConstraint(Sketcher.Constraint("DistanceY", 0, 1, 0, 2, 3.5))
sketch4.addConstraint(Sketcher.Constraint("DistanceY", 0, 2, -1, 1, 4.0))
sketch4.addConstraint(Sketcher.Constraint("DistanceY", 4, 2, -1, 1, 14.0))
pocket3 = body.newObject("PartDesign::Pocket", "Pocket002")
pocket3.Profile = sketch4
pocket3.Length = 2.54
pocket3.Reversed = True
doc.recompute()

fillet = body.newObject("PartDesign::Fillet", "Fillet")
fillet.Base = (pocket3, edges_at(pocket3, [
    (-28, 1.27, -14),
    (-28, 1.27, 14),
    (-38, 1.27, 14),
    (-38, 1.27, -14),
    (38, 1.27, 14),
    (28, 1.27, 14),
    (28, 1.27, -14),
    (38, 1.27, -14),
    (22.5, 1.27, 17.5),
    (22.5, 1.27, 14),
    (-22.5, 1.27, 14),
    (-22.5, 1.27, 17.5),
    (22.5, 1.27, -17.5),
    (-22.5, 1.27, -17.5),
    (-22.5, 1.27, -14),
    (22.5, 1.27, -14),
    (22.5, 1.27, 7.5),
    (22.5, 1.27, 4),
    (-22.5, 1.27, 4),
    (-22.5, 1.27, 7.5),
    (-22.5, 1.27, -7.5),
    (-22.5, 1.27, -4),
    (22.5, 1.27, -4),
    (22.5, 1.27, -7.5),
    (14, 1.27, -33.5),
    (14, 1.27, -22.5),
    (-14, 1.27, -22.5),
    (-14, 1.27, -33.5),
    (14, 1.27, 33.5),
    (-14, 1.27, 33.5),
    (-14, 1.27, 22.5),
    (14, 1.27, 22.5),
]))
fillet.Radius = 1

# Sketch on XZ plane
sketch5 = body.newObject("Sketcher::SketchObject", "Sketch004")
sketch5.AttachmentSupport = (doc.getObject("XZ_Plane"), [""])
sketch5.MapMode = "FlatFace"
sketch5.addGeometry(Part.Circle(App.Vector(19.2, -24.2, 0), App.Vector(0, 0, 1), 1.4), False)
sketch5.addGeometry(Part.Circle(App.Vector(19.2, 24.8, 0), App.Vector(0, 0, 1), 1.4), False)
sketch5.addGeometry(Part.Circle(App.Vector(-38.8, -24.2, 0), App.Vector(0, 0, 1), 1.4), False)
sketch5.addGeometry(Part.Circle(App.Vector(-38.8, 24.8, 0), App.Vector(0, 0, 1), 1.3), False)
sketch5.addConstraint(Sketcher.Constraint("Equal", 0, 1))
sketch5.addConstraint(Sketcher.Constraint("Equal", 1, 2))
sketch5.addConstraint(Sketcher.Constraint("Horizontal", 0, 3, 2, 3))
sketch5.addConstraint(Sketcher.Constraint("Horizontal", 1, 3, 3, 3))
sketch5.addConstraint(Sketcher.Constraint("Vertical", 0, 3, 1, 3))
sketch5.addConstraint(Sketcher.Constraint("Vertical", 2, 3, 3, 3))
sketch5.addConstraint(Sketcher.Constraint("Diameter", 0, 2.7))
sketch5.addConstraint(Sketcher.Constraint("Diameter", 3, 2.6))
sketch5.addConstraint(Sketcher.Constraint("DistanceY", 0, 3, 1, 3, 49.0))
sketch5.addConstraint(Sketcher.Constraint("DistanceX", 2, 3, 0, 3, 58.0))
sketch5.addConstraint(Sketcher.Constraint("DistanceX", -1, 1, 0, 3, 19.207739))
sketch5.addConstraint(Sketcher.Constraint("DistanceY", 0, 3, -1, 1, 24.223015))
pocket4 = body.newObject("PartDesign::Pocket", "Pocket003")
pocket4.Profile = sketch5
pocket4.Length = 2.54

doc.recompute()
